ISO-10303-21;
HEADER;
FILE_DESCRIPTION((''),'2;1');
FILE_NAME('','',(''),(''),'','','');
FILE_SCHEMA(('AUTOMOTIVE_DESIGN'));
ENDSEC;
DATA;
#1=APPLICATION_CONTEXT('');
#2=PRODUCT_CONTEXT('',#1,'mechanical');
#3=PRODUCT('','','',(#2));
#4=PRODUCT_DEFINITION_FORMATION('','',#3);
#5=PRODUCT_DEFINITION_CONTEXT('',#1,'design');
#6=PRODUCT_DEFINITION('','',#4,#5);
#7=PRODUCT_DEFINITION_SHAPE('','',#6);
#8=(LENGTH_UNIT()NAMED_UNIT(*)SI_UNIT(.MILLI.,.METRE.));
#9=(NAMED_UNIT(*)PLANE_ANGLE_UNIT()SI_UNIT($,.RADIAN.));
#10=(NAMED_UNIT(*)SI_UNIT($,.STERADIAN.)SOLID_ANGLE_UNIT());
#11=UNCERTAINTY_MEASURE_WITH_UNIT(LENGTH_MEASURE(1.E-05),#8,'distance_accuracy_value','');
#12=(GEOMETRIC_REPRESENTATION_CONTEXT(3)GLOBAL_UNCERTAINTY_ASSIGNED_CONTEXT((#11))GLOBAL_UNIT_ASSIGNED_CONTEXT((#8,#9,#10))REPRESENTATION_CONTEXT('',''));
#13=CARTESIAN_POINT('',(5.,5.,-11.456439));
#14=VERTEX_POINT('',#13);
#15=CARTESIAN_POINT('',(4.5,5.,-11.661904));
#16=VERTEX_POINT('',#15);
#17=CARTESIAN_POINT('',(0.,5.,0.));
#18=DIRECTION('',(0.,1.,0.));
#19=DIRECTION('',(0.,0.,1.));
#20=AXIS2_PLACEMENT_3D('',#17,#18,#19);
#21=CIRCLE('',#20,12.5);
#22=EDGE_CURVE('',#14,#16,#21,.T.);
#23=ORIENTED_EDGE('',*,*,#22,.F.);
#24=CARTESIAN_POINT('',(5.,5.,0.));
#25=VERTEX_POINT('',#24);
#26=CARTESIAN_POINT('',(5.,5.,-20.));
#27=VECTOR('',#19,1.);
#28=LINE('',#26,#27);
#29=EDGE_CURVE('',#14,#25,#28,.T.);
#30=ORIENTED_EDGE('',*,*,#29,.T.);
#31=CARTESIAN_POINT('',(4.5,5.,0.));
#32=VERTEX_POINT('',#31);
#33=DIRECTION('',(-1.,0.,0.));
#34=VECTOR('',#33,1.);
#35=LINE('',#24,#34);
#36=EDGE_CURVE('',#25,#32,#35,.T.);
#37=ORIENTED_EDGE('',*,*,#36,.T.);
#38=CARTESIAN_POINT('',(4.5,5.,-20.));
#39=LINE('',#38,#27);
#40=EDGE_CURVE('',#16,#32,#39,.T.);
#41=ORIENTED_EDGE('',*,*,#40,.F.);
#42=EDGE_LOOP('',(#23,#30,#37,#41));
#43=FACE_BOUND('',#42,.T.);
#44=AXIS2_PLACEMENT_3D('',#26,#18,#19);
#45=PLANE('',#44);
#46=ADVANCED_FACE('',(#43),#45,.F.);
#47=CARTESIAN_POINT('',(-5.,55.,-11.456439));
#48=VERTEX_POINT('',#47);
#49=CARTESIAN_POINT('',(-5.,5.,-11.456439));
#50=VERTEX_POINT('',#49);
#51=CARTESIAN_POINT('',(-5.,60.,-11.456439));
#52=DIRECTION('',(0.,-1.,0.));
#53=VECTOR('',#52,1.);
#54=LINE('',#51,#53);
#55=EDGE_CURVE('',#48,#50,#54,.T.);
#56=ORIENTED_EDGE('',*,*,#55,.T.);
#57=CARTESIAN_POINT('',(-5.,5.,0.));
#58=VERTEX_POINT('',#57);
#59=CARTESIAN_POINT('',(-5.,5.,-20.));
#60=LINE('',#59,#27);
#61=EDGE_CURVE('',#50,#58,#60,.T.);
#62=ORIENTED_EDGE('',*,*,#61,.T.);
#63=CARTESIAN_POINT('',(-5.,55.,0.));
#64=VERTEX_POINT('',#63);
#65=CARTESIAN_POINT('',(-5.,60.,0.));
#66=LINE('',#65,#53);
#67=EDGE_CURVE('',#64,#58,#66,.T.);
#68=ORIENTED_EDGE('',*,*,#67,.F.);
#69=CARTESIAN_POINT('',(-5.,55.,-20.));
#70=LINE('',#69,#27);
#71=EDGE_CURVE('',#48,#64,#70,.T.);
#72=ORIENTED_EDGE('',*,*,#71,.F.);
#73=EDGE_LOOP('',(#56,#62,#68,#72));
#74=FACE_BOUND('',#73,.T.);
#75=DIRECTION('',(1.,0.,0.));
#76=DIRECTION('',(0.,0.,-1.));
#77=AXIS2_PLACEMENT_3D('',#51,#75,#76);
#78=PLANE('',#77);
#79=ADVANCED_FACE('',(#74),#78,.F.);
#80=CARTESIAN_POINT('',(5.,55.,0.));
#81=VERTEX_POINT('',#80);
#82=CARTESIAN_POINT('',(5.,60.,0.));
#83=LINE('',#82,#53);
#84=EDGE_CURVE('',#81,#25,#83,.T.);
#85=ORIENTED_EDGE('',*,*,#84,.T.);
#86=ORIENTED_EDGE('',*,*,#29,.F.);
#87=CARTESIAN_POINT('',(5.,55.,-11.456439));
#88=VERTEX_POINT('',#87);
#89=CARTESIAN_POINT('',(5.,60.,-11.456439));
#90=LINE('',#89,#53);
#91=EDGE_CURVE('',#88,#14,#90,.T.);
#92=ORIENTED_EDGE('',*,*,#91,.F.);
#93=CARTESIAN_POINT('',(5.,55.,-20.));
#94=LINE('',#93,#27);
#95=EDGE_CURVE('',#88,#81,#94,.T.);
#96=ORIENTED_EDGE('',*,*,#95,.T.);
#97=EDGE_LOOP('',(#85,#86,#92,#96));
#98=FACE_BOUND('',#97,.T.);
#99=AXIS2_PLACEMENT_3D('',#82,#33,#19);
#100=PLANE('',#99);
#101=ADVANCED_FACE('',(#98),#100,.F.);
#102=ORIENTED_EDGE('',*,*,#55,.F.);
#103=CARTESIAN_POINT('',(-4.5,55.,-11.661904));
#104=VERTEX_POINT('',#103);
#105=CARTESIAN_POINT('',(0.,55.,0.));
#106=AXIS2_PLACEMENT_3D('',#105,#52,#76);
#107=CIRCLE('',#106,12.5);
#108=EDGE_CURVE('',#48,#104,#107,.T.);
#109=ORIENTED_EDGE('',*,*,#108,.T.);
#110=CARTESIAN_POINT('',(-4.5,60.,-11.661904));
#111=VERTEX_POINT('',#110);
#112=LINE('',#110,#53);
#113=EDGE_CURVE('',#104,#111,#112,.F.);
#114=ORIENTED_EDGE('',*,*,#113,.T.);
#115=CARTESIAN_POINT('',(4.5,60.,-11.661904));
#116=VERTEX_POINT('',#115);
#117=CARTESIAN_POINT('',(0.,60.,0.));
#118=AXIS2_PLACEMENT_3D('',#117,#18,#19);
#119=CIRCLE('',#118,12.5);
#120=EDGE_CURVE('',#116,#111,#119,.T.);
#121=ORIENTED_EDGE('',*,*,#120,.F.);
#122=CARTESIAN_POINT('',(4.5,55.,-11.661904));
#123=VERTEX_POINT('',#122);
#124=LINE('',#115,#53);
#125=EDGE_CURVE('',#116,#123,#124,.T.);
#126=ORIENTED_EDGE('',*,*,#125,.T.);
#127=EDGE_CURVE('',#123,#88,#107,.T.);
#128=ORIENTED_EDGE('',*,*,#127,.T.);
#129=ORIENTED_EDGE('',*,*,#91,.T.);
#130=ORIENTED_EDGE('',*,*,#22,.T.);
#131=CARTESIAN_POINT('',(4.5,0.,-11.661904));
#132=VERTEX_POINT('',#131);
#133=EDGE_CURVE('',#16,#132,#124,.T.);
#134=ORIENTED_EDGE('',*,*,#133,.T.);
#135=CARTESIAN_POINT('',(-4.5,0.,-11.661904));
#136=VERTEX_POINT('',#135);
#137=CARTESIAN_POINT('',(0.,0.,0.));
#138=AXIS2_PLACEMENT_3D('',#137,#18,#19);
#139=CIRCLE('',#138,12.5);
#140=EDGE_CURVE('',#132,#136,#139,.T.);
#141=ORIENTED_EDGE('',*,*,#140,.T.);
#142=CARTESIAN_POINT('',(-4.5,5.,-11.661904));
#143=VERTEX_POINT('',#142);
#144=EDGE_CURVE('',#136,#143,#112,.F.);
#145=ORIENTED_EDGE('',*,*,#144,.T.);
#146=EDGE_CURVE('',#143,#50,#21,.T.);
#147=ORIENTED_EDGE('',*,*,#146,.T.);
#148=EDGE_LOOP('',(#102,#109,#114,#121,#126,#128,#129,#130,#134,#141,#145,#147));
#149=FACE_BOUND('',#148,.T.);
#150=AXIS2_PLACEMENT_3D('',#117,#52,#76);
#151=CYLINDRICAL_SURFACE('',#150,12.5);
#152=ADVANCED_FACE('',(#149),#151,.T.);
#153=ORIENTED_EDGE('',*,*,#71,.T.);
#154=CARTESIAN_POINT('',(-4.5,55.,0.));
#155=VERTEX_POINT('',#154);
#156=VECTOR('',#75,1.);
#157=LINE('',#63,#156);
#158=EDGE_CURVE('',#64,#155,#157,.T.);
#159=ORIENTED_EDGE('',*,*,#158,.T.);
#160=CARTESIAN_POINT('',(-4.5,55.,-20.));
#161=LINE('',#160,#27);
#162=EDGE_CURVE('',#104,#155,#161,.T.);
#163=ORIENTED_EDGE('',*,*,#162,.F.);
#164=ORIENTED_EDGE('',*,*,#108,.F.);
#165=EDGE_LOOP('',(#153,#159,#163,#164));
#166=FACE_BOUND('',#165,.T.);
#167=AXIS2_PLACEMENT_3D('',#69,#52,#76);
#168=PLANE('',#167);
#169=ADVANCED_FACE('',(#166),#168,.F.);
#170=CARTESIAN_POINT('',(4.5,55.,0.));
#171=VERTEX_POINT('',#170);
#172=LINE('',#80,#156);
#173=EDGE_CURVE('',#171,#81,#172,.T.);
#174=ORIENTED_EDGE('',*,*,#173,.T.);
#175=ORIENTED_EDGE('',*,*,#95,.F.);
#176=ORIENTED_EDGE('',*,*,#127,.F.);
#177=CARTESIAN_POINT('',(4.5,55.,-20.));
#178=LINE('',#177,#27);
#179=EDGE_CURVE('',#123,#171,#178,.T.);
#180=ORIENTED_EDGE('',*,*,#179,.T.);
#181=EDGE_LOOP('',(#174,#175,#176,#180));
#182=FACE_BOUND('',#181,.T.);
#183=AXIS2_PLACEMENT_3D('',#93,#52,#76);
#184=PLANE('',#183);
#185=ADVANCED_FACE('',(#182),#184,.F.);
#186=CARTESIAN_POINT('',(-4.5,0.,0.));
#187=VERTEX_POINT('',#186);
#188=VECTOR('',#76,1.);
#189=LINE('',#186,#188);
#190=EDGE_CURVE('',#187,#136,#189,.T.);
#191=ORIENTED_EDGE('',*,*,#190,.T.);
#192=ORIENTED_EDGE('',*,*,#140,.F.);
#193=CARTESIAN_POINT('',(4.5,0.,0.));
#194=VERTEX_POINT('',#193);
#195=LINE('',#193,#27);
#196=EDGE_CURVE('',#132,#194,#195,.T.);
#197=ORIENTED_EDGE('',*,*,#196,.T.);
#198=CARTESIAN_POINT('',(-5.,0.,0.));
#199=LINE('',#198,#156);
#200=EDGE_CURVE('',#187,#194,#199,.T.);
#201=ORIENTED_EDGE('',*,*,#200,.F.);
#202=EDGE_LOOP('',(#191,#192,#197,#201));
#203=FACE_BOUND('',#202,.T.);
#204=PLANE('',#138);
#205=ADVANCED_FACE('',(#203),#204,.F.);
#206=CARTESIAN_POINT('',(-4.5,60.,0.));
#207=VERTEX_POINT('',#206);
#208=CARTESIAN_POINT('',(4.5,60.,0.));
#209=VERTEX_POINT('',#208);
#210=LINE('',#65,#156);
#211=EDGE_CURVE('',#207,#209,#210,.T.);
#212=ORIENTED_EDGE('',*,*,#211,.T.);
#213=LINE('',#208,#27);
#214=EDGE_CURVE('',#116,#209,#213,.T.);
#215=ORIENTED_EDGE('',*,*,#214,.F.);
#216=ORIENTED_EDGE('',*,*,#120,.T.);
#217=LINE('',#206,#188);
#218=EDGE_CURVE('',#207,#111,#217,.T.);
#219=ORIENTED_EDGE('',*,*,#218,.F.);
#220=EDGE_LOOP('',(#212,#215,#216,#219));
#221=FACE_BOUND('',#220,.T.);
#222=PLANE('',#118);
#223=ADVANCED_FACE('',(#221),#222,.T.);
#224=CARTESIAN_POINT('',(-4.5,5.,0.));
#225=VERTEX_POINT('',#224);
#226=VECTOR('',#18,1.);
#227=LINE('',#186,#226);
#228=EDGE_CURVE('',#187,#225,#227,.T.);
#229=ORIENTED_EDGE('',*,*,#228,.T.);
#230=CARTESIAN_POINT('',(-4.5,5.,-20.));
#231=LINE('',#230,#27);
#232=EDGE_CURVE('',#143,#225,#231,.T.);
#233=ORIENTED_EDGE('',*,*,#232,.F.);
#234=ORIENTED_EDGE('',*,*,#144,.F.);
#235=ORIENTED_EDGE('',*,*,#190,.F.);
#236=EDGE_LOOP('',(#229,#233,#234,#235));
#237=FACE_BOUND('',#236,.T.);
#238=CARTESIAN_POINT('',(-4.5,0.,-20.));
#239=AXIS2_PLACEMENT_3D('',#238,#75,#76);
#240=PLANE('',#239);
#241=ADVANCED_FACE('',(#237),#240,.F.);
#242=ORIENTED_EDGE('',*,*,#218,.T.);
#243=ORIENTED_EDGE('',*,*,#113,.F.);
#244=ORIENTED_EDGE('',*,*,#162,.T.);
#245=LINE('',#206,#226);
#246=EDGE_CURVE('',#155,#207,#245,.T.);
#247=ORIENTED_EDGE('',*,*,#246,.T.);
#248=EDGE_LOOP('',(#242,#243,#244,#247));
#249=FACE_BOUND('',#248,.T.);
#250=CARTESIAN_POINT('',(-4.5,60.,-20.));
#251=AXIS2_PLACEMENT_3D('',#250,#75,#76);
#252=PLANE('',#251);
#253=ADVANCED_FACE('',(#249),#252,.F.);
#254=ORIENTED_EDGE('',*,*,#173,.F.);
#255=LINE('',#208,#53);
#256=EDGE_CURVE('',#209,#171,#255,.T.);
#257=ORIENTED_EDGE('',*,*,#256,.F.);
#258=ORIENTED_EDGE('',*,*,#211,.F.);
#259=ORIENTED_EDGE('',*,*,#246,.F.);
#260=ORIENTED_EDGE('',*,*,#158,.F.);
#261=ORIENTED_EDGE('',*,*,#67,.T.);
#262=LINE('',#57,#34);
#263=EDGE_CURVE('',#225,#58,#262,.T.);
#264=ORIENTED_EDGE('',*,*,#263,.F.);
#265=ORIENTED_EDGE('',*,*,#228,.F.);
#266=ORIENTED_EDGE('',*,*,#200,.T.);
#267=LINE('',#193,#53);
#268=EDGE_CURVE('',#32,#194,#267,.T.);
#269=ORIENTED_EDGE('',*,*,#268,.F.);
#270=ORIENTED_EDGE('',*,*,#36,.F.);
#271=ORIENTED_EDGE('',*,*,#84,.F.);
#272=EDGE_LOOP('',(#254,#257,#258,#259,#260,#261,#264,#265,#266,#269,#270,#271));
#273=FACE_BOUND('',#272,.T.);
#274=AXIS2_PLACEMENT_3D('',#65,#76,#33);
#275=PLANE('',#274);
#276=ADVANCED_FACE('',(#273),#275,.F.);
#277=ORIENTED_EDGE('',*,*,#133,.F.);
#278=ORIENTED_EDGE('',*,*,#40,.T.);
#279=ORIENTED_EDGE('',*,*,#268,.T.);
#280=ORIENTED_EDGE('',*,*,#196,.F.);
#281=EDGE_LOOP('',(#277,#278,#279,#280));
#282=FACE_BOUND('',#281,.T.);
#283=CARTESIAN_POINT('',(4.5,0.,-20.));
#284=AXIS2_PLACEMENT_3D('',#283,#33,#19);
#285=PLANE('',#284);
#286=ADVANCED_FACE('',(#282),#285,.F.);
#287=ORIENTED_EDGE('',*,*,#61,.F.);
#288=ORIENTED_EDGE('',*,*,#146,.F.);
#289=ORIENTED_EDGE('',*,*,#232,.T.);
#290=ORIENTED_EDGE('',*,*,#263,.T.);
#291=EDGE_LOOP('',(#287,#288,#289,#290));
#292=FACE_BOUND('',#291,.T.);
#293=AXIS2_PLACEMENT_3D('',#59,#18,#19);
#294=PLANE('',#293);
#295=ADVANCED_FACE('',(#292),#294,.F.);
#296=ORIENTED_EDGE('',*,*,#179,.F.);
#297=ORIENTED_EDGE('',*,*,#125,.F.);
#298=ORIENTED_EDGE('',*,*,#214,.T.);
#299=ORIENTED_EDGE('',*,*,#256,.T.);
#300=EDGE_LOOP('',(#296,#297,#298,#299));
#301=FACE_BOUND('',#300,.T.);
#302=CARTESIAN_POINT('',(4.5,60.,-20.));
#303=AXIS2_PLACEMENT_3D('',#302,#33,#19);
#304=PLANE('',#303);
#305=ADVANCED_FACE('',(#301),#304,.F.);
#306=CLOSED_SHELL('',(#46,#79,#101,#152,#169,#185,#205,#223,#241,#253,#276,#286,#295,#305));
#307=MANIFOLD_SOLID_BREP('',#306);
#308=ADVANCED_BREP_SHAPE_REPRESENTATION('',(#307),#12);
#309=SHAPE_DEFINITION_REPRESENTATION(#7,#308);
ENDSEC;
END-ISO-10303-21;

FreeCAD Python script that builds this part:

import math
import FreeCAD as App
import Part
import Sketcher

doc = App.newDocument("Part")
body = doc.addObject("PartDesign::Body", "Body")

sketch1 = body.newObject("Sketcher::SketchObject", "Sketch")
sketch1.AttachmentSupport = (doc.getObject("XZ_Plane"), [""])
sketch1.MapMode = "FlatFace"
sketch1.addGeometry(Part.LineSegment(App.Vector(-5, 0, 0), App.Vector(5, 0, 0)), False)
sketch1.addGeometry(Part.LineSegment(App.Vector(5, 0, 0), App.Vector(5, -11, 0)), False)
sketch1.addGeometry(Part.ArcOfCircle(Part.Circle(App.Vector(0, 0, 0), App.Vector(0, 0, 1), 12), math.radians(-114), math.radians(-66)), False)
sketch1.addGeometry(Part.LineSegment(App.Vector(-5, -11, 0), App.Vector(-5, 0, 0)), False)
sketch1.addConstraint(Sketcher.Constraint("Coincident", 0, 2, 1, 1))
sketch1.addConstraint(Sketcher.Constraint("Coincident", 1, 2, 2, 2))
sketch1.addConstraint(Sketcher.Constraint("Coincident", 2, 1, 3, 1))
sketch1.addConstraint(Sketcher.Constraint("Coincident", 3, 2, 0, 1))
sketch1.addConstraint(Sketcher.Constraint("Horizontal", 0))
sketch1.addConstraint(Sketcher.Constraint("Vertical", 1))
sketch1.addConstraint(Sketcher.Constraint("Vertical", 3))
sketch1.addConstraint(Sketcher.Constraint("Coincident", 2, 3, -1, 1))
sketch1.addConstraint(Sketcher.Constraint("Symmetric", 0, 2, 3, 2, -1, 1))
sketch1.addConstraint(Sketcher.Constraint("Radius", 2, 12.5))
sketch1.addConstraint(Sketcher.Constraint("DistanceX", 0, 1, 0, 2, 10.0))
pad1 = body.newObject("PartDesign::Pad", "Pad")
pad1.Profile = sketch1
pad1.Length = 60
pad1.Reversed = True

sketch2 = body.newObject("Sketcher::SketchObject", "Sketch001")
sketch2.AttachmentSupport = (doc.getObject("XY_Plane"), [""])
sketch2.MapMode = "FlatFace"
sketch2.addGeometry(Part.LineSegment(App.Vector(-5, 5, 0), App.Vector(-5, 0, 0)), False)
sketch2.addGeometry(Part.LineSegment(App.Vector(-5, 0, 0), App.Vector(-4.5, 0, 0)), False)
sketch2.addGeometry(Part.LineSegment(App.Vector(-4.5, 0, 0), App.Vector(-4.5, 5, 0)), False)
sketch2.addGeometry(Part.LineSegment(App.Vector(-4.5, 5, 0), App.Vector(-5, 5, 0)), False)
sketch2.addGeometry(Part.LineSegment(App.Vector(4.5, 5, 0), App.Vector(4.5, 0, 0)), False)
sketch2.addGeometry(Part.LineSegment(App.Vector(4.5, 0, 0), App.Vector(5, 0, 0)), False)
sketch2.addGeometry(Part.LineSegment(App.Vector(5, 0, 0), App.Vector(5, 5, 0)), False)
sketch2.addGeometry(Part.LineSegment(App.Vector(5, 5, 0), App.Vector(4.5, 5, 0)), False)
sketch2.addGeometry(Part.LineSegment(App.Vector(4.5, 60, 0), App.Vector(4.5, 55, 0)), False)
sketch2.addGeometry(Part.LineSegment(App.Vector(4.5, 55, 0), App.Vector(5, 55, 0)), False)
sketch2.addGeometry(Part.LineSegment(App.Vector(5, 55, 0), App.Vector(5, 60, 0)), False)
sketch2.addGeometry(Part.LineSegment(App.Vector(5, 60, 0), App.Vector(4.5, 60, 0)), False)
sketch2.addGeometry(Part.LineSegment(App.Vector(-5, 60, 0), App.Vector(-5, 55, 0)), False)
sketch2.addGeometry(Part.LineSegment(App.Vector(-5, 55, 0), App.Vector(-4.5, 55, 0)), False)
sketch2.addGeometry(Part.LineSegment(App.Vector(-4.5, 55, 0), App.Vector(-4.5, 60, 0)), False)
sketch2.addGeometry(Part.LineSegment(App.Vector(-4.5, 60, 0), App.Vector(-5, 60, 0)), False)
sketch2.addConstraint(Sketcher.Constraint("Coincident", 0, 2, 1, 1))
sketch2.addConstraint(Sketcher.Constraint("Coincident", 1, 2, 2, 1))
sketch2.addConstraint(Sketcher.Constraint("Coincident", 2, 2, 3, 1))
sketch2.addConstraint(Sketcher.Constraint("Coincident", 3, 2, 0, 1))
sketch2.addConstraint(Sketcher.Constraint("Coincident", 4, 2, 5, 1))
sketch2.addConstraint(Sketcher.Constraint("Coincident", 5, 2, 6, 1))
sketch2.addConstraint(Sketcher.Constraint("Coincident", 6, 2, 7, 1))
sketch2.addConstraint(Sketcher.Constraint("Coincident", 7, 2, 4, 1))
sketch2.addConstraint(Sketcher.Constraint("Coincident", 8, 2, 9, 1))
sketch2.addConstraint(Sketcher.Constraint("Coincident", 9, 2, 10, 1))
sketch2.addConstraint(Sketcher.Constraint("Coincident", 10, 2, 11, 1))
sketch2.addConstraint(Sketcher.Constraint("Coincident", 11, 2, 8, 1))
sketch2.addConstraint(Sketcher.Constraint("Coincident", 12, 2, 13, 1))
sketch2.addConstraint(Sketcher.Constraint("Coincident", 13, 2, 14, 1))
sketch2.addConstraint(Sketcher.Constraint("Coincident", 14, 2, 15, 1))
sketch2.addConstraint(Sketcher.Constraint("Coincident", 15, 2, 12, 1))
sketch2.addConstraint(Sketcher.Constraint("Vertical", 0))
sketch2.addConstraint(Sketcher.Constraint("Horizontal", 1))
sketch2.addConstraint(Sketcher.Constraint("Vertical", 2))
sketch2.addConstraint(Sketcher.Constraint("Horizontal", 3))
sketch2.addConstraint(Sketcher.Constraint("Vertical", 4))
sketch2.addConstraint(Sketcher.Constraint("Horizontal", 5))
sketch2.addConstraint(Sketcher.Constraint("Vertical", 6))
sketch2.addConstraint(Sketcher.Constraint("Horizontal", 7))
sketch2.addConstraint(Sketcher.Constraint("Vertical", 8))
sketch2.addConstraint(Sketcher.Constraint("Horizontal", 9))
sketch2.addConstraint(Sketcher.Constraint("Vertical", 10))
sketch2.addConstraint(Sketcher.Constraint("Horizontal", 11))
sketch2.addConstraint(Sketcher.Constraint("Vertical", 12))
sketch2.addConstraint(Sketcher.Constraint("Horizontal", 13))
sketch2.addConstraint(Sketcher.Constraint("Vertical", 14))
sketch2.addConstraint(Sketcher.Constraint("Horizontal", 15))
sketch2.addConstraint(Sketcher.Constraint("Symmetric", 1, 2, 4, 2, -1, 1))
sketch2.addConstraint(Sketcher.Constraint("Symmetric", 0, 2, 5, 2, -2))
sketch2.addConstraint(Sketcher.Constraint("Symmetric", 9, 2, 12, 2, -2))
sketch2.addConstraint(Sketcher.Constraint("Symmetric", 11, 2, 14, 2, -2))
sketch2.addConstraint(Sketcher.Constraint("Horizontal", 3, 2, 6, 2))
sketch2.addConstraint(Sketcher.Constraint("Vertical", 7, 2, 8, 2))
sketch2.addConstraint(Sketcher.Constraint("Vertical", 6, 2, 9, 2))
sketch2.addConstraint(Sketcher.Constraint("Equal", 6, 8))
sketch2.addConstraint(Sketcher.Constraint("DistanceY", 0, 2, 0, 1, 5.0))
sketch2.addConstraint(Sketcher.Constraint("DistanceX", 1, 1, 1, 2, 0.5))
sketch2.addConstraint(Sketcher.Constraint("DistanceX", 0, 2, -1, 1, 5.0))
sketch2.addConstraint(Sketcher.Constraint("DistanceY", -1, 1, 8, 2, 55.0))
pocket1 = body.newObject("PartDesign::Pocket", "Pocket")
pocket1.Profile = sketch2
pocket1.Length = 20

doc.recompute()
